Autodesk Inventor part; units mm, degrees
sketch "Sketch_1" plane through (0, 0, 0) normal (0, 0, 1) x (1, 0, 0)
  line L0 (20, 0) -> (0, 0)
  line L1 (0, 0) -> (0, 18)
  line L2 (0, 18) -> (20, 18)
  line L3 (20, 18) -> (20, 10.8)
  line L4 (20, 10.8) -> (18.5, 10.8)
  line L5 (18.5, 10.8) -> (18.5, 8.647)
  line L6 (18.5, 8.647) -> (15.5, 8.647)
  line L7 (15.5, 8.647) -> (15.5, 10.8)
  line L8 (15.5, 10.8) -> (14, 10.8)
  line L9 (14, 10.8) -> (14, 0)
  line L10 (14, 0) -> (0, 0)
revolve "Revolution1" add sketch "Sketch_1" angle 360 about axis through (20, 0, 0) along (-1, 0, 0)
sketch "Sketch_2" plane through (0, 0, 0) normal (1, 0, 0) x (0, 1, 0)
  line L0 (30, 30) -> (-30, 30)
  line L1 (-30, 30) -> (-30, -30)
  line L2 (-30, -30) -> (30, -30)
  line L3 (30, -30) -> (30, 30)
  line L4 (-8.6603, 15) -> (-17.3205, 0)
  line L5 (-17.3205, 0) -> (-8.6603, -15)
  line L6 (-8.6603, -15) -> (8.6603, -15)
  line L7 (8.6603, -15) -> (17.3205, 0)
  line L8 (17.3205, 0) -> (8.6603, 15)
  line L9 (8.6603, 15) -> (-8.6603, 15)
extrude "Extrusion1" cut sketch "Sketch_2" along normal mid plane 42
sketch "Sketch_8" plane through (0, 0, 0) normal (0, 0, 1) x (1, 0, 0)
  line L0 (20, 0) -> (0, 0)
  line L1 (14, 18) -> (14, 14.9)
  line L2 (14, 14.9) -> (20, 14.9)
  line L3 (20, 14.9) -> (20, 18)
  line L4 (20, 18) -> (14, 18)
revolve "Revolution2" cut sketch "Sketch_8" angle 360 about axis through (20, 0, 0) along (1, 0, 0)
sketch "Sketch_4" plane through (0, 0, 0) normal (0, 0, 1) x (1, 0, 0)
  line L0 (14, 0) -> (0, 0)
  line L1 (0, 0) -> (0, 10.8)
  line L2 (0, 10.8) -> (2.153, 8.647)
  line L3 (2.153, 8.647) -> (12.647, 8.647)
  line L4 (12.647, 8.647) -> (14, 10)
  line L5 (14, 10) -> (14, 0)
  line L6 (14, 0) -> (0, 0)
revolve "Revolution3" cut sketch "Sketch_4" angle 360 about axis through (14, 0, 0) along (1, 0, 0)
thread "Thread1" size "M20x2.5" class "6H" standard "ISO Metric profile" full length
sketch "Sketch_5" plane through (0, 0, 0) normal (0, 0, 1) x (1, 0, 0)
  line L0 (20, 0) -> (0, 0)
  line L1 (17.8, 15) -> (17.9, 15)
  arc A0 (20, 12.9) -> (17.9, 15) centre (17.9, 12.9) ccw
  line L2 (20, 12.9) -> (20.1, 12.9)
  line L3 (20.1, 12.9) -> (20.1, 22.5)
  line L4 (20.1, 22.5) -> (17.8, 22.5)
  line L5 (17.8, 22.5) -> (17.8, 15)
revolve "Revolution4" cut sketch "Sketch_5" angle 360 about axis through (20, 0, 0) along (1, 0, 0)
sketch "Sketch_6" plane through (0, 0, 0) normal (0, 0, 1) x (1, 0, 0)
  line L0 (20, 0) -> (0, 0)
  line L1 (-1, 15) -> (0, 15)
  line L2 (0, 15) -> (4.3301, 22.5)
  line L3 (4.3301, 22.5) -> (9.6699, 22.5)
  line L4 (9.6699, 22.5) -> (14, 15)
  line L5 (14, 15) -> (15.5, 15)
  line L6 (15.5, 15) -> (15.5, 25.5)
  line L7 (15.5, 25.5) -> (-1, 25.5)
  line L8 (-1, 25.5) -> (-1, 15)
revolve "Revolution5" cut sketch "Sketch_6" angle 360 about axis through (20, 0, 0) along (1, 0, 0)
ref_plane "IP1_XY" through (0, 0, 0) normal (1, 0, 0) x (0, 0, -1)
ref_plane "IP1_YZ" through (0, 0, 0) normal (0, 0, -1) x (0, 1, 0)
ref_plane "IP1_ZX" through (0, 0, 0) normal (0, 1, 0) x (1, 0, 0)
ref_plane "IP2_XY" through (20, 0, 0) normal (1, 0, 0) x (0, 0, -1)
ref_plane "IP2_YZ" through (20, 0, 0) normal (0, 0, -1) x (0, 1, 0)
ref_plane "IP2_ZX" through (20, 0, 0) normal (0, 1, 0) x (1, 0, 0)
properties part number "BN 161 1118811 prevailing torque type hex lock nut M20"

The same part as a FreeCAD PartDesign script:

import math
import FreeCAD as App
import Part
import Sketcher
Q = App.Units.Quantity

doc = App.newDocument("Part")
params = doc.addObject("Spreadsheet::Sheet", "Params")
for row, (alias, value) in enumerate([
    ("sketch1_width", "14 mm"),
    ("sketch1_width2", "3 mm"),
    ("sketch1_width3", "20 mm"),
    ("sketch1_height", "18 mm"),
    ("sketch1_height2", "10.8 mm"),
    ("revolution_angle", "360 deg"),
    ("sketch2_width", "60 mm"),
    ("pocket1_length", "42 mm"),
    ("sketch3_width", "6 mm"),
    ("sketch3_height", "3.1 mm"),
    ("groove_angle", "360 deg"),
    ("sketch4_width", "14 mm"),
    ("sketch4_height", "10 mm"),
    ("sketch4_height2", "10.8 mm"),
    ("groove2_angle", "360 deg"),
    ("sketch5_radius", "2.1 mm"),
    ("sketch5_width", "0.1 mm"),
    ("sketch5_height", "7.5 mm"),
    ("sketch5_height2", "9.6 mm"),
    ("groove3_angle", "360 deg"),
    ("sketch6_width", "1 mm"),
    ("sketch6_width2", "1.5 mm"),
    ("sketch6_width3", "16.5 mm"),
    ("sketch6_height", "10.5 mm"),
    ("groove4_angle", "360 deg"),
], start=1):
    params.set(f"A{row}", alias)
    params.set(f"B{row}", "=" + value)
    params.setAlias(f"B{row}", alias)

body = doc.addObject("PartDesign::Body", "Body")

# Sketch on XY plane
sketch1 = doc.addObject("Sketcher::SketchObject", "Sketch")
body.addObject(sketch1)
sketch1.AttachmentSupport = (doc.XY_Plane, [""])
sketch1.MapMode = "FlatFace"
sketch1.addGeometry([
    Part.LineSegment(App.Vector(0, 0, 0), App.Vector(14, 0, 0)),  # 0
    Part.LineSegment(App.Vector(14, 0, 0), App.Vector(14, 10.8, 0)),  # 1
    Part.LineSegment(App.Vector(14, 10.8, 0), App.Vector(15.5, 10.8, 0)),  # 2
    Part.LineSegment(App.Vector(15.5, 10.8, 0), App.Vector(15.5, 8.6, 0)),  # 3
    Part.LineSegment(App.Vector(15.5, 8.6, 0), App.Vector(18.5, 8.6, 0)),  # 4
    Part.LineSegment(App.Vector(18.5, 8.6, 0), App.Vector(18.5, 10.8, 0)),  # 5
    Part.LineSegment(App.Vector(18.5, 10.8, 0), App.Vector(20, 10.8, 0)),  # 6
    Part.LineSegment(App.Vector(20, 10.8, 0), App.Vector(20, 18, 0)),  # 7
    Part.LineSegment(App.Vector(20, 18, 0), App.Vector(0, 18, 0)),  # 8
    Part.LineSegment(App.Vector(0, 18, 0), App.Vector(0, 0, 0)),  # 9
], False)
sketch1.addConstraint([
    Sketcher.Constraint("Coincident", 0, 2, 1, 1),
    Sketcher.Constraint("Coincident", 1, 2, 2, 1),
    Sketcher.Constraint("Coincident", 2, 2, 3, 1),
    Sketcher.Constraint("Coincident", 3, 2, 4, 1),
    Sketcher.Constraint("Coincident", 4, 2, 5, 1),
    Sketcher.Constraint("Coincident", 5, 2, 6, 1),
    Sketcher.Constraint("Coincident", 6, 2, 7, 1),
    Sketcher.Constraint("Coincident", 7, 2, 8, 1),
    Sketcher.Constraint("Coincident", 8, 2, 9, 1),
    Sketcher.Constraint("Coincident", 9, 2, 0, 1),
    Sketcher.Constraint("Horizontal", 0),
    Sketcher.Constraint("Vertical", 1),
    Sketcher.Constraint("Horizontal", 2),
    Sketcher.Constraint("Vertical", 3),
    Sketcher.Constraint("Horizontal", 4),
    Sketcher.Constraint("Vertical", 5),
    Sketcher.Constraint("Horizontal", 6),
    Sketcher.Constraint("Vertical", 7),
    Sketcher.Constraint("Horizontal", 8),
    Sketcher.Constraint("Vertical", 9),
    Sketcher.Constraint("Coincident", 9, 2, -1, 1),
    Sketcher.Constraint("Horizontal", 2, 2, 5, 2),
    Sketcher.Constraint("Equal", 2, 6),
    Sketcher.Constraint("DistanceX", 0, 1, 0, 2, 14.0),
    Sketcher.Constraint("DistanceX", 4, 1, 4, 2, 3.0),
    Sketcher.Constraint("DistanceX", 8, 2, 8, 1, 20.0),
    Sketcher.Constraint("DistanceY", 9, 2, 9, 1, 18.0),
    Sketcher.Constraint("DistanceY", 1, 1, 1, 2, 10.8),
    Sketcher.Constraint("DistanceY", 3, 2, 3, 1, 2.153),
])
sketch1.setExpression("Constraints[23]", "Params.sketch1_width")
sketch1.setExpression("Constraints[24]", "Params.sketch1_width2")
sketch1.setExpression("Constraints[25]", "Params.sketch1_width3")
sketch1.setExpression("Constraints[26]", "Params.sketch1_height")
sketch1.setExpression("Constraints[27]", "Params.sketch1_height2")
revolution = doc.addObject("PartDesign::Revolution", "Revolution")
body.addObject(revolution)
revolution.Profile = sketch1
revolution.ReferenceAxis = (sketch1, ["H_Axis"])
revolution.setExpression("Angle", "Params.revolution_angle")

# Sketch on YZ plane
sketch2 = doc.addObject("Sketcher::SketchObject", "Sketch001")
body.addObject(sketch2)
sketch2.AttachmentSupport = (doc.YZ_Plane, [""])
sketch2.MapMode = "FlatFace"
sketch2.addGeometry([
    Part.LineSegment(App.Vector(30, -30, 0), App.Vector(30, 30, 0)),  # 0
    Part.LineSegment(App.Vector(30, 30, 0), App.Vector(-30, 30, 0)),  # 1
    Part.LineSegment(App.Vector(-30, 30, 0), App.Vector(-30, -30, 0)),  # 2
    Part.LineSegment(App.Vector(-30, -30, 0), App.Vector(30, -30, 0)),  # 3
    Part.LineSegment(App.Vector(-17, 0, 0), App.Vector(-9, 15, 0)),  # 4
    Part.LineSegment(App.Vector(-9, 15, 0), App.Vector(9, 15, 0)),  # 5
    Part.LineSegment(App.Vector(9, 15, 0), App.Vector(17, 0, 0)),  # 6
    Part.LineSegment(App.Vector(17, 0, 0), App.Vector(9, -15, 0)),  # 7
    Part.LineSegment(App.Vector(9, -15, 0), App.Vector(-9, -15, 0)),  # 8
    Part.LineSegment(App.Vector(-9, -15, 0), App.Vector(-17, 0, 0)),  # 9
], False)
sketch2.addConstraint([
    Sketcher.Constraint("Coincident", 0, 2, 1, 1),
    Sketcher.Constraint("Coincident", 1, 2, 2, 1),
    Sketcher.Constraint("Coincident", 2, 2, 3, 1),
    Sketcher.Constraint("Coincident", 3, 2, 0, 1),
    Sketcher.Constraint("Coincident", 4, 2, 5, 1),
    Sketcher.Constraint("Coincident", 5, 2, 6, 1),
    Sketcher.Constraint("Coincident", 6, 2, 7, 1),
    Sketcher.Constraint("Coincident", 7, 2, 8, 1),
    Sketcher.Constraint("Coincident", 8, 2, 9, 1),
    Sketcher.Constraint("Coincident", 9, 2, 4, 1),
    Sketcher.Constraint("Vertical", 0),
    Sketcher.Constraint("Horizontal", 1),
    Sketcher.Constraint("Vertical", 2),
    Sketcher.Constraint("Horizontal", 3),
    Sketcher.Constraint("Horizontal", 5),
    Sketcher.Constraint("Horizontal", 8),
    Sketcher.Constraint("Symmetric", 0, 2, 2, 2, -1, 1),
    Sketcher.Constraint("Symmetric", 4, 2, 7, 2, -1, 1),
    Sketcher.Constraint("Symmetric", 6, 2, 9, 2, -1, 1),
    Sketcher.Constraint("PointOnObject", 6, 2, -1),
    Sketcher.Constraint("Parallel", 6, 9),
    Sketcher.Constraint("Vertical", 5, 2, 7, 2),
    Sketcher.Constraint("Equal", 3, 0),
    Sketcher.Constraint("DistanceX", 1, 2, 1, 1, 60.0),
    Sketcher.Constraint("Angle", 4, Q("60.0002 deg")),
    Sketcher.Constraint("DistanceY", -1, 1, 4, 2, 15.0),
    Sketcher.Constraint("DistanceX", 5, 1, 5, 2, 17.3206),
])
sketch2.setExpression("Constraints[23]", "Params.sketch2_width")
pocket1 = doc.addObject("PartDesign::Pocket", "Pocket")
body.addObject(pocket1)
pocket1.Profile = sketch2
pocket1.setExpression("Length", "Params.pocket1_length")
pocket1.Midplane = True

# Sketch on XY plane
sketch3 = doc.addObject("Sketcher::SketchObject", "Sketch002")
body.addObject(sketch3)
sketch3.AttachmentSupport = (doc.XY_Plane, [""])
sketch3.MapMode = "FlatFace"
sketch3.addGeometry([
    Part.LineSegment(App.Vector(20, 18, 0), App.Vector(14, 18, 0)),
    Part.LineSegment(App.Vector(14, 18, 0), App.Vector(14, 14.9, 0)),
    Part.LineSegment(App.Vector(14, 14.9, 0), App.Vector(20, 14.9, 0)),
    Part.LineSegment(App.Vector(20, 14.9, 0), App.Vector(20, 18, 0)),
], False)
sketch3.addConstraint([
    Sketcher.Constraint("Coincident", 0, 2, 1, 1),
    Sketcher.Constraint("Coincident", 1, 2, 2, 1),
    Sketcher.Constraint("Coincident", 2, 2, 3, 1),
    Sketcher.Constraint("Coincident", 3, 2, 0, 1),
    Sketcher.Constraint("Horizontal", 0),
    Sketcher.Constraint("Vertical", 1),
    Sketcher.Constraint("Horizontal", 2),
    Sketcher.Constraint("Vertical", 3),
    Sketcher.Constraint("DistanceX", 0, 2, 0, 1, 6.0),
    Sketcher.Constraint("DistanceY", 1, 2, 1, 1, 3.1),
    Sketcher.Constraint("DistanceX", -1, 1, 0, 2, 14.0),
    Sketcher.Constraint("DistanceY", -1, 1, 0, 2, 18.0),
])
sketch3.setExpression("Constraints[8]", "Params.sketch3_width")
sketch3.setExpression("Constraints[9]", "Params.sketch3_height")
groove = doc.addObject("PartDesign::Groove", "Groove")
body.addObject(groove)
groove.Profile = sketch3
groove.ReferenceAxis = (sketch3, ["H_Axis"])
groove.setExpression("Angle", "Params.groove_angle")

# Sketch on XY plane
sketch4 = doc.addObject("Sketcher::SketchObject", "Sketch003")
body.addObject(sketch4)
sketch4.AttachmentSupport = (doc.XY_Plane, [""])
sketch4.MapMode = "FlatFace"
sketch4.addGeometry([
    Part.LineSegment(App.Vector(0, 0, 0), App.Vector(14, 0, 0)),  # 0
    Part.LineSegment(App.Vector(14, 0, 0), App.Vector(14, 10, 0)),  # 1
    Part.LineSegment(App.Vector(14, 10, 0), App.Vector(12.6, 8.6, 0)),  # 2
    Part.LineSegment(App.Vector(12.6, 8.6, 0), App.Vector(2.2, 8.6, 0)),  # 3
    Part.LineSegment(App.Vector(2.2, 8.6, 0), App.Vector(0, 10.8, 0)),  # 4
    Part.LineSegment(App.Vector(0, 10.8, 0), App.Vector(0, 0, 0)),  # 5
], False)
sketch4.addConstraint([
    Sketcher.Constraint("Coincident", 0, 2, 1, 1),
    Sketcher.Constraint("Coincident", 1, 2, 2, 1),
    Sketcher.Constraint("Coincident", 2, 2, 3, 1),
    Sketcher.Constraint("Coincident", 3, 2, 4, 1),
    Sketcher.Constraint("Coincident", 4, 2, 5, 1),
    Sketcher.Constraint("Coincident", 5, 2, 0, 1),
    Sketcher.Constraint("Horizontal", 0),
    Sketcher.Constraint("Vertical", 1),
    Sketcher.Constraint("Horizontal", 3),
    Sketcher.Constraint("Vertical", 5),
    Sketcher.Constraint("Coincident", 5, 2, -1, 1),
    Sketcher.Constraint("Perpendicular", 2, 4),
    Sketcher.Constraint("DistanceX", 0, 1, 0, 2, 14.0),
    Sketcher.Constraint("DistanceY", 1, 1, 1, 2, 10.0),
    Sketcher.Constraint("Angle", 2, Q("-135 deg")),
    Sketcher.Constraint("DistanceY", 5, 2, 5, 1, 10.8),
    Sketcher.Constraint("DistanceX", 3, 2, 3, 1, 10.494),
])
sketch4.setExpression("Constraints[12]", "Params.sketch4_width")
sketch4.setExpression("Constraints[13]", "Params.sketch4_height")
sketch4.setExpression("Constraints[15]", "Params.sketch4_height2")
groove2 = doc.addObject("PartDesign::Groove", "Groove001")
body.addObject(groove2)
groove2.Profile = sketch4
groove2.ReferenceAxis = (sketch4, ["H_Axis"])
groove2.setExpression("Angle", "Params.groove2_angle")

# Sketch on XY plane
sketch5 = doc.addObject("Sketcher::SketchObject", "Sketch004")
body.addObject(sketch5)
sketch5.AttachmentSupport = (doc.XY_Plane, [""])
sketch5.MapMode = "FlatFace"
sketch5.addGeometry([
    Part.LineSegment(App.Vector(17.8, 22.5, 0), App.Vector(17.8, 15, 0)),  # 0
    Part.LineSegment(App.Vector(17.8, 15, 0), App.Vector(17.9, 15, 0)),  # 1
    Part.ArcOfCircle(Part.Circle(App.Vector(17.9, 12.9, 0), App.Vector(0, 0, 1), 2.1), math.radians(0), math.radians(90)),  # 2
    Part.LineSegment(App.Vector(20, 12.9, 0), App.Vector(20.1, 12.9, 0)),  # 3
    Part.LineSegment(App.Vector(20.1, 12.9, 0), App.Vector(20.1, 22.5, 0)),  # 4
    Part.LineSegment(App.Vector(20.1, 22.5, 0), App.Vector(17.8, 22.5, 0)),  # 5
], False)
sketch5.addConstraint([
    Sketcher.Constraint("Coincident", 0, 2, 1, 1),
    Sketcher.Constraint("Tangent", 1, 2, 2, 2),
    Sketcher.Constraint("Coincident", 2, 1, 3, 1),
    Sketcher.Constraint("Coincident", 3, 2, 4, 1),
    Sketcher.Constraint("Coincident", 4, 2, 5, 1),
    Sketcher.Constraint("Coincident", 5, 2, 0, 1),
    Sketcher.Constraint("Vertical", 0),
    Sketcher.Constraint("Horizontal", 1),
    Sketcher.Constraint("Horizontal", 3),
    Sketcher.Constraint("Vertical", 4),
    Sketcher.Constraint("Horizontal", 5),
    Sketcher.Constraint("Equal", 1, 3),
    Sketcher.Constraint("Radius", 2, 2.1),
    Sketcher.Constraint("DistanceX", 1, 1, 1, 2, 0.1),
    Sketcher.Constraint("DistanceY", 0, 2, 0, 1, 7.5),
    Sketcher.Constraint("DistanceY", 4, 1, 4, 2, 9.6),
    Sketcher.Constraint("DistanceY", -1, 1, 0, 2, 15.0),
    Sketcher.Constraint("DistanceX", -1, 1, 2, 1, 20.0),
])
sketch5.setExpression("Constraints[12]", "Params.sketch5_radius")
sketch5.setExpression("Constraints[13]", "Params.sketch5_width")
sketch5.setExpression("Constraints[14]", "Params.sketch5_height")
sketch5.setExpression("Constraints[15]", "Params.sketch5_height2")
groove3 = doc.addObject("PartDesign::Groove", "Groove002")
body.addObject(groove3)
groove3.Profile = sketch5
groove3.ReferenceAxis = (sketch5, ["H_Axis"])
groove3.setExpression("Angle", "Params.groove3_angle")

# Sketch on XY plane
sketch6 = doc.addObject("Sketcher::SketchObject", "Sketch005")
body.addObject(sketch6)
sketch6.AttachmentSupport = (doc.XY_Plane, [""])
sketch6.MapMode = "FlatFace"
sketch6.addGeometry([
    Part.LineSegment(App.Vector(-1, 25.5, 0), App.Vector(-1, 15, 0)),  # 0
    Part.LineSegment(App.Vector(-1, 15, 0), App.Vector(0, 15, 0)),  # 1
    Part.LineSegment(App.Vector(0, 15, 0), App.Vector(4.3, 22.5, 0)),  # 2
    Part.LineSegment(App.Vector(4.3, 22.5, 0), App.Vector(9.7, 22.5, 0)),  # 3
    Part.LineSegment(App.Vector(9.7, 22.5, 0), App.Vector(14, 15, 0)),  # 4
    Part.LineSegment(App.Vector(14, 15, 0), App.Vector(15.5, 15, 0)),  # 5
    Part.LineSegment(App.Vector(15.5, 15, 0), App.Vector(15.5, 25.5, 0)),  # 6
    Part.LineSegment(App.Vector(15.5, 25.5, 0), App.Vector(-1, 25.5, 0)),  # 7
], False)
sketch6.addConstraint([
    Sketcher.Constraint("Coincident", 0, 2, 1, 1),
    Sketcher.Constraint("Coincident", 1, 2, 2, 1),
    Sketcher.Constraint("Coincident", 2, 2, 3, 1),
    Sketcher.Constraint("Coincident", 3, 2, 4, 1),
    Sketcher.Constraint("Coincident", 4, 2, 5, 1),
    Sketcher.Constraint("Coincident", 5, 2, 6, 1),
    Sketcher.Constraint("Coincident", 6, 2, 7, 1),
    Sketcher.Constraint("Coincident", 7, 2, 0, 1),
    Sketcher.Constraint("Vertical", 0),
    Sketcher.Constraint("Horizontal", 1),
    Sketcher.Constraint("Horizontal", 3),
    Sketcher.Constraint("Horizontal", 5),
    Sketcher.Constraint("Vertical", 6),
    Sketcher.Constraint("Horizontal", 7),
    Sketcher.Constraint("PointOnObject", 1, 2, -2),
    Sketcher.Constraint("Horizontal", 1, 2, 4, 2),
    Sketcher.Constraint("Equal", 2, 4),
    Sketcher.Constraint("DistanceX", 1, 1, 1, 2, 1.0),
    Sketcher.Constraint("Angle", 2, Q("60.0002 deg")),
    Sketcher.Constraint("DistanceX", 5, 1, 5, 2, 1.5),
    Sketcher.Constraint("DistanceX", 7, 2, 7, 1, 16.5),
    Sketcher.Constraint("DistanceY", 0, 2, 0, 1, 10.5),
    Sketcher.Constraint("DistanceY", -1, 1, 0, 2, 15.0),
    Sketcher.Constraint("DistanceY", 3, 2, 6, 2, 3.0),
])
sketch6.setExpression("Constraints[17]", "Params.sketch6_width")
sketch6.setExpression("Constraints[19]", "Params.sketch6_width2")
sketch6.setExpression("Constraints[20]", "Params.sketch6_width3")
sketch6.setExpression("Constraints[21]", "Params.sketch6_height")
groove4 = doc.addObject("PartDesign::Groove", "Groove003")
body.addObject(groove4)
groove4.Profile = sketch6
groove4.ReferenceAxis = (sketch6, ["H_Axis"])
groove4.setExpression("Angle", "Params.groove4_angle")

doc.recompute()
